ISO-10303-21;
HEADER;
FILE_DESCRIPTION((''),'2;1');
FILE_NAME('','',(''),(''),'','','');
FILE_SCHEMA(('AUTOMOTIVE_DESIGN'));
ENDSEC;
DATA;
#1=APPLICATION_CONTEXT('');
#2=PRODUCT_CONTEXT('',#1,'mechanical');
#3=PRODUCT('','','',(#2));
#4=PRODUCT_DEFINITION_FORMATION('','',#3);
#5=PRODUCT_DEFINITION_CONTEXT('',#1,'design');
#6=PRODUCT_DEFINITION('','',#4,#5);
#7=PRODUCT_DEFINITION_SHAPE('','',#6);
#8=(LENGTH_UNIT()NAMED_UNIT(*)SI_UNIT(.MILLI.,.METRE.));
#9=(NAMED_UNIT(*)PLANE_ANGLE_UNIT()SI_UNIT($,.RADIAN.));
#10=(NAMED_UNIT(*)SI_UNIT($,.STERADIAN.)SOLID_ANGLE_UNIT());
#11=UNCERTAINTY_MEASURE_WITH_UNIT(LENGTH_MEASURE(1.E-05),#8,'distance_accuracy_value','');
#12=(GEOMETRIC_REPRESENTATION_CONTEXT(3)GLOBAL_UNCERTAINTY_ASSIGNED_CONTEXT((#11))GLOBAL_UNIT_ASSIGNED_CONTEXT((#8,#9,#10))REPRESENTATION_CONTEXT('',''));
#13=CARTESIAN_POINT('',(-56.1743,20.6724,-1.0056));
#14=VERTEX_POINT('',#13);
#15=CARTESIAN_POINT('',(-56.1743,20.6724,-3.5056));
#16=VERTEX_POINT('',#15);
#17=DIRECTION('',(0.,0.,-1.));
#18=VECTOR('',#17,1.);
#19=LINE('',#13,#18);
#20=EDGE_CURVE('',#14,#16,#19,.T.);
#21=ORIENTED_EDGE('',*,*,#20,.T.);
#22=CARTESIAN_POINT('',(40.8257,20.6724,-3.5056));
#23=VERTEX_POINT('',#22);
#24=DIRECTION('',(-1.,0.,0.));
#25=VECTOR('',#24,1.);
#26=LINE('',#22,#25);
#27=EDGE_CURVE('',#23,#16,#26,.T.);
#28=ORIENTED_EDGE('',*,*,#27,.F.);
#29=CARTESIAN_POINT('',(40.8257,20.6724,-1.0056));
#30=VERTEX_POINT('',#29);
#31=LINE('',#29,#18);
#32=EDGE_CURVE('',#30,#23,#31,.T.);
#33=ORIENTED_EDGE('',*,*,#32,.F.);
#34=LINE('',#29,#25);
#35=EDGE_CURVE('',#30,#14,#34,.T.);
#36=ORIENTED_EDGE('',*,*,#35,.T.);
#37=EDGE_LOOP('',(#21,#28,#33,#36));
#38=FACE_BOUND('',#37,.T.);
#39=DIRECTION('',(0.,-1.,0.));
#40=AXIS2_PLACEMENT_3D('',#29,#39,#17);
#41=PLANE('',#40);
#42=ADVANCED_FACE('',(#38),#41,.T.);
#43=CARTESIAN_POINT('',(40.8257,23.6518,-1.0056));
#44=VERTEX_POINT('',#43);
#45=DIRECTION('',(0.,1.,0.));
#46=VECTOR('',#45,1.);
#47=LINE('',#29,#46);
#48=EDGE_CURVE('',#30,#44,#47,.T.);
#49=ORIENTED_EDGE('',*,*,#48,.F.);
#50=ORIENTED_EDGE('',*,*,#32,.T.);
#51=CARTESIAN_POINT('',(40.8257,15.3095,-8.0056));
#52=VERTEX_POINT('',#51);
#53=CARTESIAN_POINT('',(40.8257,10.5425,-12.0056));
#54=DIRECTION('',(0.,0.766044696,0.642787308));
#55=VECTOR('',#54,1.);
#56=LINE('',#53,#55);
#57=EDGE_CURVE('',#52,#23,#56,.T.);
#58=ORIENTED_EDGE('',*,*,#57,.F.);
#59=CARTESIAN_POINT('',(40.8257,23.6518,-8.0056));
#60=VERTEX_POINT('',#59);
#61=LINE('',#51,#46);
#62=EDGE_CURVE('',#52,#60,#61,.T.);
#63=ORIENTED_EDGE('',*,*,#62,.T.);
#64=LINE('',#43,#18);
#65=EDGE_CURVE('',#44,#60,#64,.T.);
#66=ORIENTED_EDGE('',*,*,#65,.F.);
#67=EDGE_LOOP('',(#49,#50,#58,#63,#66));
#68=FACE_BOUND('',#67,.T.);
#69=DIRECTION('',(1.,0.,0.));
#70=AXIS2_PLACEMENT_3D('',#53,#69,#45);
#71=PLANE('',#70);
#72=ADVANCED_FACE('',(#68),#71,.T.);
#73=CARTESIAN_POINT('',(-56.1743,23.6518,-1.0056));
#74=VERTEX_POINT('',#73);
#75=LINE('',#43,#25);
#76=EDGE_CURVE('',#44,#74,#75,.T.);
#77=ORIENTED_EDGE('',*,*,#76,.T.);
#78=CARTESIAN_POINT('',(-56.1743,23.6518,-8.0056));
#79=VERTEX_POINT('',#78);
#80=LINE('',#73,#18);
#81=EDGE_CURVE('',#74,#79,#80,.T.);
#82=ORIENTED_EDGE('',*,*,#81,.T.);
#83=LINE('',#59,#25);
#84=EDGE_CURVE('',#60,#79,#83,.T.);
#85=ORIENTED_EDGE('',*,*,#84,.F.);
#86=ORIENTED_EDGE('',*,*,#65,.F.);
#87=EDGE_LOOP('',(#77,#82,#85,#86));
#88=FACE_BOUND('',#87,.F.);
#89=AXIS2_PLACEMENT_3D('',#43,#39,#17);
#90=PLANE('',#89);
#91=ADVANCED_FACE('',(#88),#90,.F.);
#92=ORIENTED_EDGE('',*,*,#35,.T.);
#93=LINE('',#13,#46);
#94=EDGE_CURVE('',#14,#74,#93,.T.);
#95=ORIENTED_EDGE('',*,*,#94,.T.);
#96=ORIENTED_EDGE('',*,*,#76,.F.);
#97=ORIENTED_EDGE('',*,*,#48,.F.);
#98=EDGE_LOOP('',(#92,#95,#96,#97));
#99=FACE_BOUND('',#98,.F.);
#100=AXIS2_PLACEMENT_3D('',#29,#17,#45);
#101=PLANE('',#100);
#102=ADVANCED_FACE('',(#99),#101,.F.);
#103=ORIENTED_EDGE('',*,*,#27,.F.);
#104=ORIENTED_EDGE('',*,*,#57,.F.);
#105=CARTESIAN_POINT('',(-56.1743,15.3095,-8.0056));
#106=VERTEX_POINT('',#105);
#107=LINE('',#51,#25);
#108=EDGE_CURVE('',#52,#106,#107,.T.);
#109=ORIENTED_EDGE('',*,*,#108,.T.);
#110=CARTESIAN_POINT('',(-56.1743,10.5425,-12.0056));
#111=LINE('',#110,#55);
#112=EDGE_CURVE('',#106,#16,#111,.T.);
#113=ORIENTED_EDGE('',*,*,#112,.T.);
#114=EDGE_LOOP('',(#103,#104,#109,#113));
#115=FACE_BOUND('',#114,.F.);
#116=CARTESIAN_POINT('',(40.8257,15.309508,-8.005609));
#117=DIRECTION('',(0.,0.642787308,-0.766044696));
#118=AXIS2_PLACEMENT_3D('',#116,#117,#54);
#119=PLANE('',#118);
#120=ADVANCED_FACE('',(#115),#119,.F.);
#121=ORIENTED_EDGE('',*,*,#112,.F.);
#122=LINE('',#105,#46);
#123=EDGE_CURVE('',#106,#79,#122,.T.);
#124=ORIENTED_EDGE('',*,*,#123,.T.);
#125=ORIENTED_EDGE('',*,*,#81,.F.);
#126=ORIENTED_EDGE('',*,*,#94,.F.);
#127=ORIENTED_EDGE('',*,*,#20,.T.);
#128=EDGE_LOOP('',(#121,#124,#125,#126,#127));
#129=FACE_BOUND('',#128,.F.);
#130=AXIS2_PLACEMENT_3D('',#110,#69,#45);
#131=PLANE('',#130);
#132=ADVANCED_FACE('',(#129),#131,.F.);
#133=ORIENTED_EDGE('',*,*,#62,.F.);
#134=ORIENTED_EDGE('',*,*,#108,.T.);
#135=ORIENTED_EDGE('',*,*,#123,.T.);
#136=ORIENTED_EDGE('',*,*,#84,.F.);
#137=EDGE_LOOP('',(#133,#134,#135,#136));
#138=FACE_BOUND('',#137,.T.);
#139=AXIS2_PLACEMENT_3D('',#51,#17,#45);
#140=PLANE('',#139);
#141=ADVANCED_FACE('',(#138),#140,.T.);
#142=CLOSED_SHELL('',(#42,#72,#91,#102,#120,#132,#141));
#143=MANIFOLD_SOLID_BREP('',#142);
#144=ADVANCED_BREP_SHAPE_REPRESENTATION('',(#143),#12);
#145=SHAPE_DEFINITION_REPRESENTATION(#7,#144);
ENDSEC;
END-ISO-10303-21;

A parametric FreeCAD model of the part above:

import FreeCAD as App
import Part
import Sketcher

V = App.Vector
Q = App.Units.Quantity

doc = App.newDocument("Part")
body = doc.addObject("PartDesign::Body", "Body")

sketch1 = body.newObject("Sketcher::SketchObject", "Sketch")
sketch1.AttachmentSupport = (doc.getObject("YZ_Plane"), [""])
sketch1.MapMode = "FlatFace"
sketch1.AttachmentOffset = App.Placement(V(0, 0, 40.8257), App.Rotation())
sketch1.addGeometry([
    Part.LineSegment(V(20.7, -3.5, 0), V(15.3, -8, 0)),
    Part.LineSegment(V(15.3, -8, 0), V(23.7, -8, 0)),
    Part.LineSegment(V(23.7, -8, 0), V(23.7, -1, 0)),
    Part.LineSegment(V(23.7, -1, 0), V(20.7, -1, 0)),
    Part.LineSegment(V(20.7, -1, 0), V(20.7, -3.5, 0)),
], False)
sketch1.addConstraint([
    Sketcher.Constraint("Coincident", 0, 2, 1, 1),
    Sketcher.Constraint("Coincident", 1, 2, 2, 1),
    Sketcher.Constraint("Coincident", 2, 2, 3, 1),
    Sketcher.Constraint("Coincident", 3, 2, 4, 1),
    Sketcher.Constraint("Coincident", 4, 2, 0, 1),
    Sketcher.Constraint("Horizontal", 1),
    Sketcher.Constraint("Vertical", 2),
    Sketcher.Constraint("Horizontal", 3),
    Sketcher.Constraint("Vertical", 4),
    Sketcher.Constraint("DistanceY", 2, 1, 2, 2, 7.0),
    Sketcher.Constraint("DistanceY", 4, 2, 4, 1, 2.5),
    Sketcher.Constraint("Angle", 0, Q("-140 deg")),
    Sketcher.Constraint("DistanceX", 1, 1, 1, 2, 8.3423),
    Sketcher.Constraint("DistanceX", -1, 1, 0, 2, 15.3095),
    Sketcher.Constraint("DistanceY", 0, 2, -1, 1, 8.0056),
])
pad1 = body.newObject("PartDesign::Pad", "Pad")
pad1.Profile = sketch1
pad1.Length = 97
pad1.Reversed = True

doc.recompute()
